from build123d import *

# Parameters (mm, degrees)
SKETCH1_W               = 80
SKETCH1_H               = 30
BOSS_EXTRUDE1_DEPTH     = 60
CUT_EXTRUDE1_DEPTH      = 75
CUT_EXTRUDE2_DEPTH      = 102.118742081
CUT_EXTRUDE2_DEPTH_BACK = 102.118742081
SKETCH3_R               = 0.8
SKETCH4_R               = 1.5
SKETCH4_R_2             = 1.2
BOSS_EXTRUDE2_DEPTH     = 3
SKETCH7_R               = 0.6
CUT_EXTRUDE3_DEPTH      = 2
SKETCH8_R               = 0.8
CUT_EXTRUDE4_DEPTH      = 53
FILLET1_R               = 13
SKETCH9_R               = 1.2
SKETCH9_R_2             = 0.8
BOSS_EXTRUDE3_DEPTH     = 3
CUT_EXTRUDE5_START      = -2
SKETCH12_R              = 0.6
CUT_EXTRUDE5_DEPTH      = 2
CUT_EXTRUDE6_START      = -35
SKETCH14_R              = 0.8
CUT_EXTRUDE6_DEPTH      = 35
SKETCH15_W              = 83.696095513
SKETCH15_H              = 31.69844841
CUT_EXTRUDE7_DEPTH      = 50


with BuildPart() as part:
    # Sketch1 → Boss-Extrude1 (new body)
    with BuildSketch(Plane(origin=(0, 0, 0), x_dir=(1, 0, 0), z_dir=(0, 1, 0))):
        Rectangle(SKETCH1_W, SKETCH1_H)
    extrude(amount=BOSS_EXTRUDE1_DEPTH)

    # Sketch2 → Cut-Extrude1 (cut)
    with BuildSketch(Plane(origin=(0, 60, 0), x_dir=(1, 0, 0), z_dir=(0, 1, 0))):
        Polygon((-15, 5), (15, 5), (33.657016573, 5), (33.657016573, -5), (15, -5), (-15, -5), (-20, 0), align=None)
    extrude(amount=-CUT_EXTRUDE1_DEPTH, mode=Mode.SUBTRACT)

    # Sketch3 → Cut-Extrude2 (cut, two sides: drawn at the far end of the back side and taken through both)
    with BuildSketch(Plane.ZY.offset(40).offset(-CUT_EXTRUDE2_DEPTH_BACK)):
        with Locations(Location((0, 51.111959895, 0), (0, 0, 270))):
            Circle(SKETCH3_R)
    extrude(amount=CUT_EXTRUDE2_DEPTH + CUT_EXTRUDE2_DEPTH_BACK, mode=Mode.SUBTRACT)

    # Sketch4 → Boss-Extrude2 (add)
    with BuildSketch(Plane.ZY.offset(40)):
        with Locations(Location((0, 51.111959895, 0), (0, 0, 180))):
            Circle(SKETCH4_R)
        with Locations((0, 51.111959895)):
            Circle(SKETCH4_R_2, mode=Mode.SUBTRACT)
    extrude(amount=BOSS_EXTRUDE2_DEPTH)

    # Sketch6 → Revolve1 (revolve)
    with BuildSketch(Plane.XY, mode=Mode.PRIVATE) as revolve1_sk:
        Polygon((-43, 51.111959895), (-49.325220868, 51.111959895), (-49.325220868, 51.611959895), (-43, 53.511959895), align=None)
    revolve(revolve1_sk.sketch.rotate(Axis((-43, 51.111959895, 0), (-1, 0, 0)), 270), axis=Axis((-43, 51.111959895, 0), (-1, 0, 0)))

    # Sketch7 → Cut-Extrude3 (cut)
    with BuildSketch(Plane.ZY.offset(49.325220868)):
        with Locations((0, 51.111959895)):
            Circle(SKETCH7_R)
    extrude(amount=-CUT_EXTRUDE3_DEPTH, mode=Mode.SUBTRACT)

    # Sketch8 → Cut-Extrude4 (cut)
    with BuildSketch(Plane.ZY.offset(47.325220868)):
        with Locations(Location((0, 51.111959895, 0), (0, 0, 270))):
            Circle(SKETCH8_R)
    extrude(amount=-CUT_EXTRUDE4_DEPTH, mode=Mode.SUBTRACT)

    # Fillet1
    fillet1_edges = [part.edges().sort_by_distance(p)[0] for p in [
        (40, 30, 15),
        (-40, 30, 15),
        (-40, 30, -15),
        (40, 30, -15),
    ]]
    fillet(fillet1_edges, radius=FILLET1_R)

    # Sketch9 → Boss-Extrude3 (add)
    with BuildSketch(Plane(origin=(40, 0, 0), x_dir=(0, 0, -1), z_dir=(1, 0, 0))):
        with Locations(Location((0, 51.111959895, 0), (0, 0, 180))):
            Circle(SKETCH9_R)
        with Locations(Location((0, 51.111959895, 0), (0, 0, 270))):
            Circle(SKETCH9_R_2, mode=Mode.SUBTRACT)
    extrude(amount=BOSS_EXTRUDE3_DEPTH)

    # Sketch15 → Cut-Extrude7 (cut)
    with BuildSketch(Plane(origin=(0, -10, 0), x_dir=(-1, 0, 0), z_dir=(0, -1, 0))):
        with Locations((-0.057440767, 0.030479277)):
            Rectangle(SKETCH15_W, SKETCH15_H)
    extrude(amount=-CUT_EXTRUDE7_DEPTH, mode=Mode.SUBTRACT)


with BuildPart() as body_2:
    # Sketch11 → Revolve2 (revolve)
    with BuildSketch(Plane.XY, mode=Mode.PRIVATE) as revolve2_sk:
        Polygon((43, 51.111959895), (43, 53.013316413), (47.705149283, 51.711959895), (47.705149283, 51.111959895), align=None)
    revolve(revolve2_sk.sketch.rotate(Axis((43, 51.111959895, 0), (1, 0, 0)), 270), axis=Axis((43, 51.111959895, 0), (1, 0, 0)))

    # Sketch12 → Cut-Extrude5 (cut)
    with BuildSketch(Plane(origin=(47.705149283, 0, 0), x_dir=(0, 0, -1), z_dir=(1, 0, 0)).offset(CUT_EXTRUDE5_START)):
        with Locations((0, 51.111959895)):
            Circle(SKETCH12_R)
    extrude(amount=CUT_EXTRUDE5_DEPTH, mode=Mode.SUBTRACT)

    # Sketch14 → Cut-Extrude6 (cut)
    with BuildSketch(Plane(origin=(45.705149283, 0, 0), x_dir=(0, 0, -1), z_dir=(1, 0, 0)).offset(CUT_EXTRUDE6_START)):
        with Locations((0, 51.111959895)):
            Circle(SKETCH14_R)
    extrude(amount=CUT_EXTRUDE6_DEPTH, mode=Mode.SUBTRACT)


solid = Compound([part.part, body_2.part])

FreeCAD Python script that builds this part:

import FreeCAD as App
import Part
import Sketcher

V = App.Vector


def edges_at(feature, points):
    """Names of the edges that pass closest to the given points."""
    edges = feature.Shape.Edges
    near = lambda p: min(range(len(edges)), key=lambda i: edges[i].distToShape(Part.Vertex(*p))[0])
    return sorted({f"Edge{near(p) + 1}" for p in points})

doc = App.newDocument("Part")
params = doc.addObject("Spreadsheet::Sheet", "Params")
for row, (alias, value) in enumerate([
    ("sketch1_width", "80 mm"),
    ("sketch1_height", "30 mm"),
    ("pad1_length", "60 mm"),
    ("sketch2_height", "10 mm"),
    ("pocket1_length", "75 mm"),
    ("sketch3_diameter", "1.6 mm"),
    ("sketch4_diameter", "3 mm"),
    ("sketch4_diameter2", "2.4 mm"),
    ("pad2_length", "3 mm"),
    ("sketch5_height", "2.4 mm"),
    ("sketch5_height2", "0.5 mm"),
    ("revolution_angle", "360 deg"),
    ("sketch6_diameter", "1.2 mm"),
    ("pocket3_length", "2 mm"),
    ("sketch7_diameter", "1.6 mm"),
    ("pocket4_length", "53 mm"),
    ("fillet_radius", "13 mm"),
    ("sketch8_diameter", "2.4 mm"),
    ("sketch8_diameter2", "1.6 mm"),
    ("pad3_length", "3 mm"),
    ("pocket5_length", "50 mm"),
    ("sketch10_height", "0.6 mm"),
    ("revolution2_angle", "360 deg"),
    ("sketch11_diameter", "1.2 mm"),
    ("pocket6_length", "2 mm"),
    ("sketch12_diameter", "1.6 mm"),
    ("pocket7_length", "35 mm"),
], start=1):
    params.set(f"A{row}", alias)
    params.set(f"B{row}", "=" + value)
    params.setAlias(f"B{row}", alias)

body = doc.addObject("PartDesign::Body", "Body")

# Sketch on XZ plane
sketch1 = body.newObject("Sketcher::SketchObject", "Sketch")
sketch1.AttachmentSupport = (doc.getObject("XZ_Plane"), [""])
sketch1.MapMode = "FlatFace"
sketch1.addGeometry([
    Part.LineSegment(V(-40, -15, 0), V(-40, 15, 0)),
    Part.LineSegment(V(-40, 15, 0), V(40, 15, 0)),
    Part.LineSegment(V(40, 15, 0), V(40, -15, 0)),
    Part.LineSegment(V(40, -15, 0), V(-40, -15, 0)),
], False)
sketch1.addConstraint([
    Sketcher.Constraint("Coincident", 0, 2, 1, 1),
    Sketcher.Constraint("Coincident", 1, 2, 2, 1),
    Sketcher.Constraint("Coincident", 2, 2, 3, 1),
    Sketcher.Constraint("Coincident", 3, 2, 0, 1),
    Sketcher.Constraint("Vertical", 0),
    Sketcher.Constraint("Horizontal", 1),
    Sketcher.Constraint("Vertical", 2),
    Sketcher.Constraint("Horizontal", 3),
    Sketcher.Constraint("Symmetric", 0, 2, 2, 2, -1, 1),
    Sketcher.Constraint("DistanceX", 1, 1, 1, 2, 80.0),
    Sketcher.Constraint("DistanceY", 0, 1, 0, 2, 30.0),
])
sketch1.setExpression("Constraints[9]", "Params.sketch1_width")
sketch1.setExpression("Constraints[10]", "Params.sketch1_height")
pad1 = body.newObject("PartDesign::Pad", "Pad")
pad1.Profile = sketch1
pad1.setExpression("Length", "Params.pad1_length")
pad1.Reversed = True

# Sketch on XZ plane
sketch2 = body.newObject("Sketcher::SketchObject", "Sketch001")
sketch2.AttachmentSupport = (doc.getObject("XZ_Plane"), [""])
sketch2.MapMode = "FlatFace"
sketch2.AttachmentOffset = App.Placement(V(0, 0, -60), App.Rotation())
sketch2.addGeometry([
    Part.LineSegment(V(33.657017, -5, 0), V(-15, -5, 0)),  # 0
    Part.LineSegment(V(-15, -5, 0), V(-20, 0, 0)),  # 1
    Part.LineSegment(V(-20, 0, 0), V(-15, 5, 0)),  # 2
    Part.LineSegment(V(-15, 5, 0), V(33.657017, 5, 0)),  # 3
    Part.LineSegment(V(33.657017, 5, 0), V(33.657017, -5, 0)),  # 4
], False)
sketch2.addConstraint([
    Sketcher.Constraint("Coincident", 0, 2, 1, 1),
    Sketcher.Constraint("Coincident", 1, 2, 2, 1),
    Sketcher.Constraint("Coincident", 2, 2, 3, 1),
    Sketcher.Constraint("Coincident", 3, 2, 4, 1),
    Sketcher.Constraint("Coincident", 4, 2, 0, 1),
    Sketcher.Constraint("Horizontal", 0),
    Sketcher.Constraint("Horizontal", 3),
    Sketcher.Constraint("Vertical", 4),
    Sketcher.Constraint("Symmetric", 0, 2, 2, 2, -1),
    Sketcher.Constraint("PointOnObject", 1, 2, -1),
    Sketcher.Constraint("Perpendicular", 1, 2),
    Sketcher.Constraint("DistanceY", 4, 2, 4, 1, 10.0),
    Sketcher.Constraint("DistanceX", 0, 2, -1, 1, 15.0),
    Sketcher.Constraint("DistanceX", 0, 2, 0, 1, 48.657017),
])
sketch2.setExpression("Constraints[11]", "Params.sketch2_height")
pocket1 = body.newObject("PartDesign::Pocket", "Pocket")
pocket1.Profile = sketch2
pocket1.setExpression("Length", "Params.pocket1_length")
pocket1.Reversed = True

# Sketch on YZ plane
sketch3 = body.newObject("Sketcher::SketchObject", "Sketch002")
sketch3.AttachmentSupport = (doc.getObject("YZ_Plane"), [""])
sketch3.MapMode = "FlatFace"
sketch3.AttachmentOffset = App.Placement(V(0, 0, -40), App.Rotation())
sketch3.addGeometry(Part.Circle(V(51.11196, 0, 0), V(0, 0, 1), 0.8), False)
sketch3.addConstraint([
    Sketcher.Constraint("PointOnObject", 0, 3, -1),
    Sketcher.Constraint("Diameter", 0, 1.6),
    Sketcher.Constraint("DistanceX", -1, 1, 0, 3, 51.11196),
])
sketch3.setExpression("Constraints[1]", "Params.sketch3_diameter")
pocket2 = body.newObject("PartDesign::Pocket", "Pocket001")
pocket2.Profile = sketch3
pocket2.Type = "ThroughAll"
pocket2.Midplane = True

# Sketch on YZ plane
sketch4 = body.newObject("Sketcher::SketchObject", "Sketch003")
sketch4.AttachmentSupport = (doc.getObject("YZ_Plane"), [""])
sketch4.MapMode = "FlatFace"
sketch4.AttachmentOffset = App.Placement(V(0, 0, -40), App.Rotation())
sketch4.addGeometry([
    Part.Circle(V(51.11196, 0, 0), V(0, 0, 1), 1.5),
    Part.Circle(V(51.11196, 0, 0), V(0, 0, 1), 1.2),
], False)
sketch4.addConstraint([
    Sketcher.Constraint("Coincident", 1, 3, 0, 3),
    Sketcher.Constraint("PointOnObject", 0, 3, -1),
    Sketcher.Constraint("Diameter", 0, 3.0),
    Sketcher.Constraint("Diameter", 1, 2.4),
    Sketcher.Constraint("DistanceX", -1, 1, 0, 3, 51.11196),
])
sketch4.setExpression("Constraints[2]", "Params.sketch4_diameter")
sketch4.setExpression("Constraints[3]", "Params.sketch4_diameter2")
pad2 = body.newObject("PartDesign::Pad", "Pad001")
pad2.Profile = sketch4
pad2.setExpression("Length", "Params.pad2_length")
pad2.Reversed = True

# Sketch on XY plane
sketch5 = body.newObject("Sketcher::SketchObject", "Sketch004")
sketch5.AttachmentSupport = (doc.getObject("XY_Plane"), [""])
sketch5.MapMode = "FlatFace"
sketch5.addGeometry([
    Part.LineSegment(V(-49.325221, 51.11196, 0), V(-43, 51.11196, 0)),
    Part.LineSegment(V(-43, 51.11196, 0), V(-43, 53.51196, 0)),
    Part.LineSegment(V(-43, 53.51196, 0), V(-49.325221, 51.61196, 0)),
    Part.LineSegment(V(-49.325221, 51.61196, 0), V(-49.325221, 51.11196, 0)),
], False)
sketch5.addGeometry(Part.LineSegment(V(-43, 51.11196, 0), V(-49.325221, 51.11196, 0)), True)  # axis
sketch5.addConstraint([
    Sketcher.Constraint("Coincident", 0, 2, 1, 1),
    Sketcher.Constraint("Coincident", 1, 2, 2, 1),
    Sketcher.Constraint("Coincident", 2, 2, 3, 1),
    Sketcher.Constraint("Coincident", 3, 2, 0, 1),
    Sketcher.Constraint("Horizontal", 0),
    Sketcher.Constraint("Vertical", 1),
    Sketcher.Constraint("Vertical", 3),
    Sketcher.Constraint("Horizontal", 4),
    Sketcher.Constraint("Coincident", 4, 1, 0, 2),
    Sketcher.Constraint("Vertical", 2, 2, 4, 2),
    Sketcher.Constraint("DistanceY", 1, 1, 1, 2, 2.4),
    Sketcher.Constraint("DistanceY", 3, 2, 3, 1, 0.5),
    Sketcher.Constraint("DistanceX", 0, 2, -1, 1, 43.0),
    Sketcher.Constraint("DistanceX", 0, 1, 0, 2, 6.325221),
    Sketcher.Constraint("DistanceY", -1, 1, 0, 2, 51.11196),
])
sketch5.setExpression("Constraints[10]", "Params.sketch5_height")
sketch5.setExpression("Constraints[11]", "Params.sketch5_height2")
revolution = body.newObject("PartDesign::Revolution", "Revolution")
revolution.Profile = sketch5
revolution.ReferenceAxis = (sketch5, ["Axis0"])
revolution.setExpression("Angle", "Params.revolution_angle")

# Sketch on YZ plane
sketch6 = body.newObject("Sketcher::SketchObject", "Sketch005")
sketch6.AttachmentSupport = (doc.getObject("YZ_Plane"), [""])
sketch6.MapMode = "FlatFace"
sketch6.AttachmentOffset = App.Placement(V(0, 0, -49.325221), App.Rotation())
sketch6.addGeometry(Part.Circle(V(51.11196, 0, 0), V(0, 0, 1), 0.6), False)
sketch6.addConstraint([
    Sketcher.Constraint("PointOnObject", 0, 3, -1),
    Sketcher.Constraint("Diameter", 0, 1.2),
    Sketcher.Constraint("DistanceX", -1, 1, 0, 3, 51.11196),
])
sketch6.setExpression("Constraints[1]", "Params.sketch6_diameter")
pocket3 = body.newObject("PartDesign::Pocket", "Pocket002")
pocket3.Profile = sketch6
pocket3.setExpression("Length", "Params.pocket3_length")
pocket3.Reversed = True

# Sketch on YZ plane
sketch7 = body.newObject("Sketcher::SketchObject", "Sketch006")
sketch7.AttachmentSupport = (doc.getObject("YZ_Plane"), [""])
sketch7.MapMode = "FlatFace"
sketch7.AttachmentOffset = App.Placement(V(0, 0, -47.325221), App.Rotation())
sketch7.addGeometry(Part.Circle(V(51.11196, 0, 0), V(0, 0, 1), 0.8), False)
sketch7.addConstraint([
    Sketcher.Constraint("PointOnObject", 0, 3, -1),
    Sketcher.Constraint("Diameter", 0, 1.6),
    Sketcher.Constraint("DistanceX", -1, 1, 0, 3, 51.11196),
])
sketch7.setExpression("Constraints[1]", "Params.sketch7_diameter")
pocket4 = body.newObject("PartDesign::Pocket", "Pocket003")
pocket4.Profile = sketch7
pocket4.setExpression("Length", "Params.pocket4_length")
pocket4.Reversed = True
doc.recompute()

fillet = body.newObject("PartDesign::Fillet", "Fillet")
fillet.Base = (pocket4, edges_at(pocket4, [
    (40, 30, 15),
    (-40, 30, 15),
    (-40, 30, -15),
    (40, 30, -15),
]))
fillet.setExpression("Radius", "Params.fillet_radius")

# Sketch on YZ plane
sketch8 = body.newObject("Sketcher::SketchObject", "Sketch007")
sketch8.AttachmentSupport = (doc.getObject("YZ_Plane"), [""])
sketch8.MapMode = "FlatFace"
sketch8.AttachmentOffset = App.Placement(V(0, 0, 40), App.Rotation())
sketch8.addGeometry([
    Part.Circle(V(51.11196, 0, 0), V(0, 0, 1), 1.2),
    Part.Circle(V(51.11196, 0, 0), V(0, 0, 1), 0.8),
], False)
sketch8.addConstraint([
    Sketcher.Constraint("Coincident", 1, 3, 0, 3),
    Sketcher.Constraint("PointOnObject", 0, 3, -1),
    Sketcher.Constraint("Diameter", 0, 2.4),
    Sketcher.Constraint("Diameter", 1, 1.6),
    Sketcher.Constraint("DistanceX", -1, 1, 0, 3, 51.11196),
])
sketch8.setExpression("Constraints[2]", "Params.sketch8_diameter")
sketch8.setExpression("Constraints[3]", "Params.sketch8_diameter2")
pad3 = body.newObject("PartDesign::Pad", "Pad002")
pad3.Profile = sketch8
pad3.setExpression("Length", "Params.pad3_length")

# Sketch on XZ plane
sketch9 = body.newObject("Sketcher::SketchObject", "Sketch008")
sketch9.AttachmentSupport = (doc.getObject("XZ_Plane"), [""])
sketch9.MapMode = "FlatFace"
sketch9.AttachmentOffset = App.Placement(V(0, 0, 10), App.Rotation())
sketch9.addGeometry([
    Part.LineSegment(V(41.905489, -15.879703, 0), V(41.905489, 15.818745, 0)),
    Part.LineSegment(V(41.905489, 15.818745, 0), V(-41.790607, 15.818745, 0)),
    Part.LineSegment(V(-41.790607, 15.818745, 0), V(-41.790607, -15.879703, 0)),
    Part.LineSegment(V(-41.790607, -15.879703, 0), V(41.905489, -15.879703, 0)),
], False)
sketch9.addConstraint([
    Sketcher.Constraint("Coincident", 0, 2, 1, 1),
    Sketcher.Constraint("Coincident", 1, 2, 2, 1),
    Sketcher.Constraint("Coincident", 2, 2, 3, 1),
    Sketcher.Constraint("Coincident", 3, 2, 0, 1),
    Sketcher.Constraint("Vertical", 0),
    Sketcher.Constraint("Horizontal", 1),
    Sketcher.Constraint("Vertical", 2),
    Sketcher.Constraint("Horizontal", 3),
    Sketcher.Constraint("DistanceY", 0, 1, 0, 2, 31.698448),
    Sketcher.Constraint("DistanceX", 1, 2, 1, 1, 83.696096),
    Sketcher.Constraint("DistanceX", -1, 1, 0, 2, 41.905489),
    Sketcher.Constraint("DistanceY", -1, 1, 0, 2, 15.818745),
])
pocket5 = body.newObject("PartDesign::Pocket", "Pocket004")
pocket5.Profile = sketch9
pocket5.setExpression("Length", "Params.pocket5_length")
body2 = doc.addObject("PartDesign::Body", "Body001")

# Sketch on XY plane
sketch10 = body2.newObject("Sketcher::SketchObject", "Sketch009")
sketch10.AttachmentSupport = (doc.getObject("XY_Plane001"), [""])
sketch10.MapMode = "FlatFace"
sketch10.addGeometry([
    Part.LineSegment(V(43, 53.013316, 0), V(43, 51.11196, 0)),
    Part.LineSegment(V(43, 51.11196, 0), V(47.705149, 51.11196, 0)),
    Part.LineSegment(V(47.705149, 51.11196, 0), V(47.705149, 51.71196, 0)),
    Part.LineSegment(V(47.705149, 51.71196, 0), V(43, 53.013316, 0)),
], False)
sketch10.addGeometry(Part.LineSegment(V(43, 51.11196, 0), V(47.705149, 51.11196, 0)), True)  # axis
sketch10.addConstraint([
    Sketcher.Constraint("Coincident", 0, 2, 1, 1),
    Sketcher.Constraint("Coincident", 1, 2, 2, 1),
    Sketcher.Constraint("Coincident", 2, 2, 3, 1),
    Sketcher.Constraint("Coincident", 3, 2, 0, 1),
    Sketcher.Constraint("Vertical", 0),
    Sketcher.Constraint("Horizontal", 1),
    Sketcher.Constraint("Vertical", 2),
    Sketcher.Constraint("Horizontal", 4),
    Sketcher.Constraint("Coincident", 4, 1, 0, 2),
    Sketcher.Constraint("Vertical", 2, 2, 4, 2),
    Sketcher.Constraint("DistanceY", 2, 1, 2, 2, 0.6),
    Sketcher.Constraint("DistanceX", -1, 1, 0, 2, 43.0),
    Sketcher.Constraint("Distance", 3, 4.881799),
    Sketcher.Constraint("DistanceX", 1, 1, 1, 2, 4.705149),
    Sketcher.Constraint("DistanceY", -1, 1, 0, 2, 51.11196),
])
sketch10.setExpression("Constraints[10]", "Params.sketch10_height")
revolution2 = body2.newObject("PartDesign::Revolution", "Revolution001")
revolution2.Profile = sketch10
revolution2.ReferenceAxis = (sketch10, ["Axis0"])
revolution2.setExpression("Angle", "Params.revolution2_angle")

# Sketch on YZ plane
sketch11 = body2.newObject("Sketcher::SketchObject", "Sketch010")
sketch11.AttachmentSupport = (doc.getObject("YZ_Plane001"), [""])
sketch11.MapMode = "FlatFace"
sketch11.AttachmentOffset = App.Placement(V(0, 0, 45.705149), App.Rotation())
sketch11.addGeometry(Part.Circle(V(51.11196, 0, 0), V(0, 0, 1), 0.6), False)
sketch11.addConstraint([
    Sketcher.Constraint("PointOnObject", 0, 3, -1),
    Sketcher.Constraint("Diameter", 0, 1.2),
    Sketcher.Constraint("DistanceX", -1, 1, 0, 3, 51.11196),
])
sketch11.setExpression("Constraints[1]", "Params.sketch11_diameter")
pocket6 = body2.newObject("PartDesign::Pocket", "Pocket005")
pocket6.Profile = sketch11
pocket6.setExpression("Length", "Params.pocket6_length")
pocket6.Reversed = True

# Sketch on YZ plane
sketch12 = body2.newObject("Sketcher::SketchObject", "Sketch011")
sketch12.AttachmentSupport = (doc.getObject("YZ_Plane001"), [""])
sketch12.MapMode = "FlatFace"
sketch12.AttachmentOffset = App.Placement(V(0, 0, 10.705149), App.Rotation())
sketch12.addGeometry(Part.Circle(V(51.11196, 0, 0), V(0, 0, 1), 0.8), False)
sketch12.addConstraint([
    Sketcher.Constraint("PointOnObject", 0, 3, -1),
    Sketcher.Constraint("Diameter", 0, 1.6),
    Sketcher.Constraint("DistanceX", -1, 1, 0, 3, 51.11196),
])
sketch12.setExpression("Constraints[1]", "Params.sketch12_diameter")
pocket7 = body2.newObject("PartDesign::Pocket", "Pocket006")
pocket7.Profile = sketch12
pocket7.setExpression("Length", "Params.pocket7_length")
pocket7.Reversed = True

doc.recompute()
